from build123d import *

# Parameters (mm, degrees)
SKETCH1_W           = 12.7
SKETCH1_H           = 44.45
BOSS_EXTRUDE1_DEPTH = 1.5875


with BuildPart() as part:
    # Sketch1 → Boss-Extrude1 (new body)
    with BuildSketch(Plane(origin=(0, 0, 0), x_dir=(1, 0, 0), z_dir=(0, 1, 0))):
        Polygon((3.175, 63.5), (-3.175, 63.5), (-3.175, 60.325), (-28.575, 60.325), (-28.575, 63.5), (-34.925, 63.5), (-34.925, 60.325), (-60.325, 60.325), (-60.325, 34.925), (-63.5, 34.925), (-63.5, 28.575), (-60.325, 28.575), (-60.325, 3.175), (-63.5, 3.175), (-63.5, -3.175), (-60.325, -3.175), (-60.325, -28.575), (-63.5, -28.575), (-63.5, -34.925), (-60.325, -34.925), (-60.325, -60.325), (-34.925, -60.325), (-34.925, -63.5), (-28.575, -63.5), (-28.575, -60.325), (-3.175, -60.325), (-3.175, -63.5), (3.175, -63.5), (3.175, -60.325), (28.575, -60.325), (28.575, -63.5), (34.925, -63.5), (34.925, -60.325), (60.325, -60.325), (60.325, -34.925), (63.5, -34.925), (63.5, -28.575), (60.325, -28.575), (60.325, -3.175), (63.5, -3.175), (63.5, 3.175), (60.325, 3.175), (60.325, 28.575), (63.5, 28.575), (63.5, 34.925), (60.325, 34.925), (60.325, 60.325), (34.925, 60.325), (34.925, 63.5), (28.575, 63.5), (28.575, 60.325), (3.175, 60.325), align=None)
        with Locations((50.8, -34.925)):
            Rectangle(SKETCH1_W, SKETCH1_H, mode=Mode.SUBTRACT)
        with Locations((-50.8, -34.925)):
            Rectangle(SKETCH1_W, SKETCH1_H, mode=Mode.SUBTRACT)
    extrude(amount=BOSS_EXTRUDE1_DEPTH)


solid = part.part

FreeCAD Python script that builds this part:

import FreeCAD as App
import Part
import Sketcher
Q = App.Units.Quantity


def add_polygon(sketch, points):
    """Adds a closed chain of lines whose ends are joined by coincident constraints."""
    first, n = sketch.GeometryCount, len(points)
    for a, b in zip(points, points[1:] + points[:1]):
        sketch.addGeometry(Part.LineSegment(App.Vector(*a, 0), App.Vector(*b, 0)), False)
    for i in range(n):
        sketch.addConstraint(Sketcher.Constraint("Coincident", first + i, 2, first + (i + 1) % n, 1))

doc = App.newDocument("Part")
body = doc.addObject("PartDesign::Body", "Body")

# Sketch on XZ plane
sketch1 = doc.addObject("Sketcher::SketchObject", "Sketch")
body.addObject(sketch1)
sketch1.AttachmentSupport = (doc.XZ_Plane, [""])
sketch1.MapMode = "FlatFace"
add_polygon(sketch1, [(3.2, -63.5), (-3.2, -63.5), (-3.2, -60.3), (-28.6, -60.3), (-28.6, -63.5), (-34.9, -63.5), (-34.9, -60.3), (-60.3, -60.3), (-60.3, -34.9), (-63.5, -34.9), (-63.5, -28.6), (-60.3, -28.6), (-60.3, -3.2), (-63.5, -3.2), (-63.5, 3.2), (-60.3, 3.2), (-60.3, 28.6), (-63.5, 28.6), (-63.5, 34.9), (-60.3, 34.9), (-60.3, 60.3), (-34.9, 60.3), (-34.9, 63.5), (-28.6, 63.5), (-28.6, 60.3), (-3.2, 60.3), (-3.2, 63.5), (3.2, 63.5), (3.2, 60.3), (28.6, 60.3), (28.6, 63.5), (34.9, 63.5), (34.9, 60.3), (60.3, 60.3), (60.3, 34.9), (63.5, 34.9), (63.5, 28.6), (60.3, 28.6), (60.3, 3.2), (63.5, 3.2), (63.5, -3.2), (60.3, -3.2), (60.3, -28.6), (63.5, -28.6), (63.5, -34.9), (60.3, -34.9), (60.3, -60.3), (34.9, -60.3), (34.9, -63.5), (28.6, -63.5), (28.6, -60.3), (3.2, -60.3)])  # lines 0-51
add_polygon(sketch1, [(-44.5, 57.1), (-57.1, 57.1), (-57.1, 12.7), (-44.5, 12.7)])  # lines 52-55
add_polygon(sketch1, [(57.1, 57.1), (44.5, 57.1), (44.5, 12.7), (57.1, 12.7)])  # lines 56-59
sketch1.addConstraint([
    Sketcher.Constraint("Horizontal", 0),
    Sketcher.Constraint("Vertical", 1),
    Sketcher.Constraint("Horizontal", 2),
    Sketcher.Constraint("Vertical", 3),
    Sketcher.Constraint("Horizontal", 4),
    Sketcher.Constraint("Vertical", 5),
    Sketcher.Constraint("Horizontal", 6),
    Sketcher.Constraint("Vertical", 7),
    Sketcher.Constraint("Horizontal", 8),
    Sketcher.Constraint("Vertical", 9),
    Sketcher.Constraint("Horizontal", 10),
    Sketcher.Constraint("Vertical", 11),
    Sketcher.Constraint("Horizontal", 12),
    Sketcher.Constraint("Vertical", 13),
    Sketcher.Constraint("Horizontal", 14),
    Sketcher.Constraint("Vertical", 15),
    Sketcher.Constraint("Horizontal", 16),
    Sketcher.Constraint("Vertical", 17),
    Sketcher.Constraint("Horizontal", 18),
    Sketcher.Constraint("Vertical", 19),
    Sketcher.Constraint("Horizontal", 20),
    Sketcher.Constraint("Vertical", 21),
    Sketcher.Constraint("Horizontal", 22),
    Sketcher.Constraint("Vertical", 23),
    Sketcher.Constraint("Horizontal", 24),
    Sketcher.Constraint("Vertical", 25),
    Sketcher.Constraint("Horizontal", 26),
    Sketcher.Constraint("Vertical", 27),
    Sketcher.Constraint("Horizontal", 28),
    Sketcher.Constraint("Vertical", 29),
    Sketcher.Constraint("Horizontal", 30),
    Sketcher.Constraint("Vertical", 31),
    Sketcher.Constraint("Horizontal", 32),
    Sketcher.Constraint("Vertical", 33),
    Sketcher.Constraint("Horizontal", 34),
    Sketcher.Constraint("Vertical", 35),
    Sketcher.Constraint("Horizontal", 36),
    Sketcher.Constraint("Vertical", 37),
    Sketcher.Constraint("Horizontal", 38),
    Sketcher.Constraint("Vertical", 39),
    Sketcher.Constraint("Horizontal", 40),
    Sketcher.Constraint("Vertical", 41),
    Sketcher.Constraint("Horizontal", 42),
    Sketcher.Constraint("Vertical", 43),
    Sketcher.Constraint("Horizontal", 44),
    Sketcher.Constraint("Vertical", 45),
    Sketcher.Constraint("Horizontal", 46),
    Sketcher.Constraint("Vertical", 47),
    Sketcher.Constraint("Horizontal", 48),
    Sketcher.Constraint("Vertical", 49),
    Sketcher.Constraint("Horizontal", 50),
    Sketcher.Constraint("Vertical", 51),
    Sketcher.Constraint("Horizontal", 52),
    Sketcher.Constraint("Vertical", 53),
    Sketcher.Constraint("Horizontal", 54),
    Sketcher.Constraint("Vertical", 55),
    Sketcher.Constraint("Horizontal", 56),
    Sketcher.Constraint("Vertical", 57),
    Sketcher.Constraint("Horizontal", 58),
    Sketcher.Constraint("Vertical", 59),
    Sketcher.Constraint("Symmetric", 0, 2, 26, 2, -1, 1),
    Sketcher.Constraint("Symmetric", 2, 2, 28, 2, -1, 1),
    Sketcher.Constraint("Symmetric", 4, 2, 30, 2, -1, 1),
    Sketcher.Constraint("Symmetric", 6, 2, 32, 2, -1, 1),
    Sketcher.Constraint("Symmetric", 8, 2, 34, 2, -1, 1),
    Sketcher.Constraint("Symmetric", 10, 2, 36, 2, -1, 1),
    Sketcher.Constraint("Symmetric", 12, 2, 38, 2, -1, 1),
    Sketcher.Constraint("Symmetric", 14, 2, 40, 2, -1, 1),
    Sketcher.Constraint("Symmetric", 16, 2, 42, 2, -1, 1),
    Sketcher.Constraint("Symmetric", 18, 2, 44, 2, -1, 1),
    Sketcher.Constraint("Symmetric", 20, 2, 46, 2, -1, 1),
    Sketcher.Constraint("Symmetric", 22, 2, 48, 2, -1, 1),
    Sketcher.Constraint("Symmetric", 24, 2, 50, 2, -1, 1),
    Sketcher.Constraint("Symmetric", 24, 2, 27, 2, -2),
    Sketcher.Constraint("Symmetric", 22, 2, 29, 2, -2),
    Sketcher.Constraint("Symmetric", 20, 2, 31, 2, -2),
    Sketcher.Constraint("Symmetric", 18, 2, 33, 2, -2),
    Sketcher.Constraint("Symmetric", 16, 2, 35, 2, -2),
    Sketcher.Constraint("Symmetric", 14, 2, 37, 2, -2),
    Sketcher.Constraint("Symmetric", 55, 2, 56, 2, -2),
    Sketcher.Constraint("Symmetric", 53, 2, 58, 2, -2),
    Sketcher.Constraint("Horizontal", 0, 2, 3, 2),
    Sketcher.Constraint("Horizontal", 2, 2, 5, 2),
    Sketcher.Constraint("Vertical", 7, 2, 10, 2),
    Sketcher.Constraint("Vertical", 9, 2, 12, 2),
    Sketcher.Constraint("Equal", 0, 4),
    Sketcher.Constraint("Equal", 2, 6),
    Sketcher.Constraint("Equal", 44, 1),
    Sketcher.Constraint("Equal", 50, 7),
    Sketcher.Constraint("Equal", 48, 9),
    Sketcher.Constraint("Equal", 7, 11),
    Sketcher.Constraint("Equal", 9, 13),
    Sketcher.Constraint("DistanceX", 2, 2, 2, 1, Q("1 in")),
    Sketcher.Constraint("DistanceX", 52, 2, 52, 1, Q("0.5 in")),
    Sketcher.Constraint("DistanceX", 0, 2, 0, 1, Q("0.25 in")),
    Sketcher.Constraint("DistanceY", 53, 2, 53, 1, Q("1.75 in")),
    Sketcher.Constraint("DistanceY", 0, 2, -1, 1, Q("2.5 in")),
    Sketcher.Constraint("DistanceY", -1, 1, 53, 2, Q("0.5 in")),
    Sketcher.Constraint("DistanceX", 52, 2, -1, 1, Q("2.25 in")),
])
pad1 = doc.addObject("PartDesign::Pad", "Pad")
body.addObject(pad1)
pad1.Profile = sketch1
pad1.Length = Q("0.0625 in")
pad1.Reversed = True

doc.recompute()
